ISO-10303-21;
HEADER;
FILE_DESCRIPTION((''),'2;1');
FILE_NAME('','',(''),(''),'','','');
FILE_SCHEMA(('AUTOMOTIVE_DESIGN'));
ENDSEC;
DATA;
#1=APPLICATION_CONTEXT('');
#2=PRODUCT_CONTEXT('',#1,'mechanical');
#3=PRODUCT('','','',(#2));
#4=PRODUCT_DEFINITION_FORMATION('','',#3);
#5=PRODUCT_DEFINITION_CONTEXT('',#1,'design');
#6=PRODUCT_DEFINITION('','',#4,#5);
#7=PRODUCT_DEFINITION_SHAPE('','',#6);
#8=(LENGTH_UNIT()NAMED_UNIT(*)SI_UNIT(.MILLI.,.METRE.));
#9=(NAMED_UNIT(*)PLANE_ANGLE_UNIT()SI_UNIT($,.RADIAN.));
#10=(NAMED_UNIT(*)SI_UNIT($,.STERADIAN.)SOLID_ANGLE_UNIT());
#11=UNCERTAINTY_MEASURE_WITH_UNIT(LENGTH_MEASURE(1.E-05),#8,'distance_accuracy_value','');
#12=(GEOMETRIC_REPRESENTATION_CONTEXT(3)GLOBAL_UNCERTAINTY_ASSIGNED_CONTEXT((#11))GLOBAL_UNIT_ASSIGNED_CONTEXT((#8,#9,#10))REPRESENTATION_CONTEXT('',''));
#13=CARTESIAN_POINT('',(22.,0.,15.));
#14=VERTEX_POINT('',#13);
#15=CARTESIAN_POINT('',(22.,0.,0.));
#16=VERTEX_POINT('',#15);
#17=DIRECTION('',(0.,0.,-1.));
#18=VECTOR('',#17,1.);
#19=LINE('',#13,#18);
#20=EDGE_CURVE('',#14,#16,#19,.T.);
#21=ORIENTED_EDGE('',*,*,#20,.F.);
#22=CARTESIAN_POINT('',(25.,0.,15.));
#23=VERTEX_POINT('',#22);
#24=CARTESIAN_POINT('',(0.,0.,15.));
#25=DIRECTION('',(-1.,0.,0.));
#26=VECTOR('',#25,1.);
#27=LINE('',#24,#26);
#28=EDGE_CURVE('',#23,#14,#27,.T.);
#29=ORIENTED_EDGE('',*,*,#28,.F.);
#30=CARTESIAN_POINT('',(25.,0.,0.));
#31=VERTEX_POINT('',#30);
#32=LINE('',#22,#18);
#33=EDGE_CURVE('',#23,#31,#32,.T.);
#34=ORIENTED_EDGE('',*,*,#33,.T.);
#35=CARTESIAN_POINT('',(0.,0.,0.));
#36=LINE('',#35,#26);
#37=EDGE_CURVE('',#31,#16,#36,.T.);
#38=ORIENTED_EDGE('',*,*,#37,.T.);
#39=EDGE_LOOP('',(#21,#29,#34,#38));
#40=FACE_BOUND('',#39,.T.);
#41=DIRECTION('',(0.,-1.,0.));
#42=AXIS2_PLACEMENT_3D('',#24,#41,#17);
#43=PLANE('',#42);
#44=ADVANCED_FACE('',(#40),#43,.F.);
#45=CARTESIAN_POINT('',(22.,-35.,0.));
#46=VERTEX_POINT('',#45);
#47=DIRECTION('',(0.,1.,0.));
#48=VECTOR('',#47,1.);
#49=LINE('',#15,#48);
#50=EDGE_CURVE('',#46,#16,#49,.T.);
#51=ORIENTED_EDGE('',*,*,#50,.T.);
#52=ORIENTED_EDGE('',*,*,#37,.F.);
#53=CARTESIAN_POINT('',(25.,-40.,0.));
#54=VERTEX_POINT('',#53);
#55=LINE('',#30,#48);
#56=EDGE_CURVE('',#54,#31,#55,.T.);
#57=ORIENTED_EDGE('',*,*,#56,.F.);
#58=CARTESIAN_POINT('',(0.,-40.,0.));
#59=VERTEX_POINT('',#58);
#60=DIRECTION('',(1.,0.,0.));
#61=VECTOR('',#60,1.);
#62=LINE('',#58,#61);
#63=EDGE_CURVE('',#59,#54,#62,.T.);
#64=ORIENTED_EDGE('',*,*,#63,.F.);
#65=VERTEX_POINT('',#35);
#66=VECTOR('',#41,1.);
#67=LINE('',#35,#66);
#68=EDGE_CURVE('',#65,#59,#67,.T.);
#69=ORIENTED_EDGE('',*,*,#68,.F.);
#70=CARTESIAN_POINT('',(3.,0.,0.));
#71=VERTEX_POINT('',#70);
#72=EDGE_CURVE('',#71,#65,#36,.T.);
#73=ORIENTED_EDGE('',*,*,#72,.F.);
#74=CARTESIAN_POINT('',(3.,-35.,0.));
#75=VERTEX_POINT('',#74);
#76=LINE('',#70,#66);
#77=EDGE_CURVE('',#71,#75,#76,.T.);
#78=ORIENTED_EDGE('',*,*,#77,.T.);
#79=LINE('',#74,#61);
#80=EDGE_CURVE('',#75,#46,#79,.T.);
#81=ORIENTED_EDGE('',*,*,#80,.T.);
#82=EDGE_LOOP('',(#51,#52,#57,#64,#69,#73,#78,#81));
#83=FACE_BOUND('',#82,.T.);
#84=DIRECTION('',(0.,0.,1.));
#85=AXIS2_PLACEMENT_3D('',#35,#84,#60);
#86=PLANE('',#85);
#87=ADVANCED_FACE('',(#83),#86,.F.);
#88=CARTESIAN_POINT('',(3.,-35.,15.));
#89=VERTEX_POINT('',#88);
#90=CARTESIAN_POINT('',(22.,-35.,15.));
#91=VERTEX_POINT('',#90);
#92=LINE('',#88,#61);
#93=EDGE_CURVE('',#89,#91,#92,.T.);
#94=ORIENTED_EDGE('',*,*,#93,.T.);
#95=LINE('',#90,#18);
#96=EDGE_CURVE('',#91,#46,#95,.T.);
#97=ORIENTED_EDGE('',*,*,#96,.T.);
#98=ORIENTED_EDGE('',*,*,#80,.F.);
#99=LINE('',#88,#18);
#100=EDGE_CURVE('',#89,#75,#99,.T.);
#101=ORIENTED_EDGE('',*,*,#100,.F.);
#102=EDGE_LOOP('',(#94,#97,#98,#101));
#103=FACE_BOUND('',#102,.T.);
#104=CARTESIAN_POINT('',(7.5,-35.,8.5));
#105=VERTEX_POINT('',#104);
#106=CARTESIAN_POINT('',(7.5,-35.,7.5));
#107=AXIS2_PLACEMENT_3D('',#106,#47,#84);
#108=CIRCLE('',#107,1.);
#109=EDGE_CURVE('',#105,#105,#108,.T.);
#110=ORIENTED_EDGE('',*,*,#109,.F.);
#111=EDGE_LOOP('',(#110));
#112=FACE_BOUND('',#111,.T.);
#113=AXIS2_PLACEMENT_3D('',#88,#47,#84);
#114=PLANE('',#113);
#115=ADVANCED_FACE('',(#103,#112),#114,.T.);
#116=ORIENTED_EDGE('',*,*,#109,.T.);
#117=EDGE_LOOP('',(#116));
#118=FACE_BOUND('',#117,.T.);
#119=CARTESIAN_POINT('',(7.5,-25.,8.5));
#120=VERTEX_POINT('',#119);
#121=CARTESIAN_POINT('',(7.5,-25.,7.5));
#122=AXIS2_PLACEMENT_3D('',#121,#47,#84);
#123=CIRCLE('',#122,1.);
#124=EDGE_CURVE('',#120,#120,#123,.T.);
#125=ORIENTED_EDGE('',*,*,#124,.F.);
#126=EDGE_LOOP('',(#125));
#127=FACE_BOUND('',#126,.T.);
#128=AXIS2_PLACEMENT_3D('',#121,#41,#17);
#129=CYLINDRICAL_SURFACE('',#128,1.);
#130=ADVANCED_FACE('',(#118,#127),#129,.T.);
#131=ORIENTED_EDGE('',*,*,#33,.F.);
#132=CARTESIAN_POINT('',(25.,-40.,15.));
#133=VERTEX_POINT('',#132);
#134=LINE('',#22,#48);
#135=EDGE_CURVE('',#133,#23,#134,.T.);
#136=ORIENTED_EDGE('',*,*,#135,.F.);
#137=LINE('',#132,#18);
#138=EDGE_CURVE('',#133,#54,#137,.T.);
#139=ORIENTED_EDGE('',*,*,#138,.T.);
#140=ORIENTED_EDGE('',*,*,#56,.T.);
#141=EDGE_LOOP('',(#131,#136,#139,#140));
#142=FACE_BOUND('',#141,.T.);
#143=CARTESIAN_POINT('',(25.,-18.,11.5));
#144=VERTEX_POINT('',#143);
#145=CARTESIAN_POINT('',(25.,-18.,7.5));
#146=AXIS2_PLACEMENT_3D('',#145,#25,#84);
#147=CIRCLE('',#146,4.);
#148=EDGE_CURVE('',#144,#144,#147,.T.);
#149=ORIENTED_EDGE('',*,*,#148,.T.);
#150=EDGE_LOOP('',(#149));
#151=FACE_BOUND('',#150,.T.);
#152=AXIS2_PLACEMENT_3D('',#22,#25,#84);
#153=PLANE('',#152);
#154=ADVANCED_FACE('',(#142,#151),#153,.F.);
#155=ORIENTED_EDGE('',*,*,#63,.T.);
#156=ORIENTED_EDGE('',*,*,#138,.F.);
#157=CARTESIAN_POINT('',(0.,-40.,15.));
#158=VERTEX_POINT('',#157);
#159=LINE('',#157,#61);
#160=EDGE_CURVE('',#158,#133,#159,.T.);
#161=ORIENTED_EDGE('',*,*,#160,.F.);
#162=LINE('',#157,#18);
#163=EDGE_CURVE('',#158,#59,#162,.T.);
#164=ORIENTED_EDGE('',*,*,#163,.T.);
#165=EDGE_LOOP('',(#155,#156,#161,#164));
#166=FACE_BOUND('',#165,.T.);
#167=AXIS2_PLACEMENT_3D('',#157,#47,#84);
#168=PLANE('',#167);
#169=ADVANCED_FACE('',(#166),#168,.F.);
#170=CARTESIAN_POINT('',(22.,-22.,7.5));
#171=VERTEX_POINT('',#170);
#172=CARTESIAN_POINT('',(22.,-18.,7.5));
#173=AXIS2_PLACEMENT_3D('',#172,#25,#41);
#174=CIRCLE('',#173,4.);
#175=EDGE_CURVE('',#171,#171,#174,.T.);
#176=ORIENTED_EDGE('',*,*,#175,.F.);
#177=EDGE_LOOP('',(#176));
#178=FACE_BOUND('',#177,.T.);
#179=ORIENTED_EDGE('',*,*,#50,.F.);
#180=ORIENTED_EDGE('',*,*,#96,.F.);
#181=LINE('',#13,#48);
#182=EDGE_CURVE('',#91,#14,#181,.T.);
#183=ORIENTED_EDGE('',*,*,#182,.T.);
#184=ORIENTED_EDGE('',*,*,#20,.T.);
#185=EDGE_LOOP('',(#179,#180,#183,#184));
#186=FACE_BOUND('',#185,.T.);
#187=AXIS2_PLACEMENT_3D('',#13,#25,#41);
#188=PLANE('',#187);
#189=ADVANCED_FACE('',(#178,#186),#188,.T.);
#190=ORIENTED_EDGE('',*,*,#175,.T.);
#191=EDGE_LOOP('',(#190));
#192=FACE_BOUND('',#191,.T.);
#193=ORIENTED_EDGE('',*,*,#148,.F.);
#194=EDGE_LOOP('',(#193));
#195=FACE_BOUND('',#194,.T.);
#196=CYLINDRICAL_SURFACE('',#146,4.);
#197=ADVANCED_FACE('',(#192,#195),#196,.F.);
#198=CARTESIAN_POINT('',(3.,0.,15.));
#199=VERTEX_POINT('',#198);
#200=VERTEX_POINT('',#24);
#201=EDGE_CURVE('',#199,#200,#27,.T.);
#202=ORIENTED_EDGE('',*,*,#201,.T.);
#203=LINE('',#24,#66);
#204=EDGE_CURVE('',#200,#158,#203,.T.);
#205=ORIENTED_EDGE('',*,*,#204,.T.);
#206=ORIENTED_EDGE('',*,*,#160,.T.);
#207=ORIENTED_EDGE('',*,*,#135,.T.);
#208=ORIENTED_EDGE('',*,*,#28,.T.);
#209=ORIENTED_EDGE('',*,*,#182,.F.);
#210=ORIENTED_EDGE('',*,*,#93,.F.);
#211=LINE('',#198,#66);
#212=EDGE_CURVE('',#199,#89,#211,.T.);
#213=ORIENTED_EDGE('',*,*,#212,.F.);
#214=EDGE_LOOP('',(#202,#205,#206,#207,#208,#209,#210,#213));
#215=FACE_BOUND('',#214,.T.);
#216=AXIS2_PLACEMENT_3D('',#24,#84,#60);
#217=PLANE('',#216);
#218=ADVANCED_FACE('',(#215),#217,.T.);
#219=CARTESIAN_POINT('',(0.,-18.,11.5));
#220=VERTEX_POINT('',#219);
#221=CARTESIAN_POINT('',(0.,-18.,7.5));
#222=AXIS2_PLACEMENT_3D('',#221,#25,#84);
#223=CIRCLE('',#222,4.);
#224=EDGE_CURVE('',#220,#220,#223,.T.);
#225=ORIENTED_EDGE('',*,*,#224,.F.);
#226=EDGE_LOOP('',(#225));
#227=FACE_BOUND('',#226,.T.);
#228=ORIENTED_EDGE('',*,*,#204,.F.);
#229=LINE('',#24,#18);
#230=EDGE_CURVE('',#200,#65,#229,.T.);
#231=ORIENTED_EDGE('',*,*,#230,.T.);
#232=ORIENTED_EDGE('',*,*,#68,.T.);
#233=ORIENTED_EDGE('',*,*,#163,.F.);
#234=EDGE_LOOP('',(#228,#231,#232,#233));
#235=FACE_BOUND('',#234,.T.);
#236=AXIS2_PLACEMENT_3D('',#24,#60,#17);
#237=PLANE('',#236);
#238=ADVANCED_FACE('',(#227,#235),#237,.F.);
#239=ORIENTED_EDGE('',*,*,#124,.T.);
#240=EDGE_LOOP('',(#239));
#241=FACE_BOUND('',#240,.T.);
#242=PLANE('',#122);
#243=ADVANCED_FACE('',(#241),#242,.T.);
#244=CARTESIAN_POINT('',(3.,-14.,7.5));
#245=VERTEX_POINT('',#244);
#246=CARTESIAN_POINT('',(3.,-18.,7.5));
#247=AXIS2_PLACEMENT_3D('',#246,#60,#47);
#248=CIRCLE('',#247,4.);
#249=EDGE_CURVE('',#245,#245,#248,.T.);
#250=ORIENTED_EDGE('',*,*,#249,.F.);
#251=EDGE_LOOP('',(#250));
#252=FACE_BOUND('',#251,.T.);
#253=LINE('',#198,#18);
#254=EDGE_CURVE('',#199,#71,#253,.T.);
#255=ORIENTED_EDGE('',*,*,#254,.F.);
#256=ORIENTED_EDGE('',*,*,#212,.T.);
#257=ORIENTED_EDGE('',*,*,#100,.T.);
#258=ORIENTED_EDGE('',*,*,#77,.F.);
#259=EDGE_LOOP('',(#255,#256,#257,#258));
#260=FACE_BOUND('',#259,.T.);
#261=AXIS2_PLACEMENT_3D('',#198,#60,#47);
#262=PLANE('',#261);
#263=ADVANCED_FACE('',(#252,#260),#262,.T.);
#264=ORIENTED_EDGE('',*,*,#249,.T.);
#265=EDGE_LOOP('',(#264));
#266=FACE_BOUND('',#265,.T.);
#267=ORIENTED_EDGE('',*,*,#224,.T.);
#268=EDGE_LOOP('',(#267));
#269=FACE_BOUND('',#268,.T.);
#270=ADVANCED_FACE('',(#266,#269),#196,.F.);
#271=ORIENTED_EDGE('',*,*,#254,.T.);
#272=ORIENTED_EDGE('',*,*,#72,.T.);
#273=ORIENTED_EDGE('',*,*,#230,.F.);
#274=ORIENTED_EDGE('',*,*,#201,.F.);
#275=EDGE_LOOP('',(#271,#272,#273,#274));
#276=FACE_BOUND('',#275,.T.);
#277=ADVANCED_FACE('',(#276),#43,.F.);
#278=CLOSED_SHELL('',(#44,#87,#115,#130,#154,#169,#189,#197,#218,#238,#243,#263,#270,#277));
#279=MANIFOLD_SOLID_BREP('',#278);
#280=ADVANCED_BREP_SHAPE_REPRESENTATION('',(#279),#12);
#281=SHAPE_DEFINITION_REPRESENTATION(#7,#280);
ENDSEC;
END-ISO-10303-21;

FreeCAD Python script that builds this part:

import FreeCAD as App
import Part
import Sketcher

V = App.Vector
Q = App.Units.Quantity


def add_polygon(sketch, points):
    """Adds a closed chain of lines whose ends are joined by coincident constraints."""
    first, n = sketch.GeometryCount, len(points)
    for a, b in zip(points, points[1:] + points[:1]):
        sketch.addGeometry(Part.LineSegment(App.Vector(*a, 0), App.Vector(*b, 0)), False)
    for i in range(n):
        sketch.addConstraint(Sketcher.Constraint("Coincident", first + i, 2, first + (i + 1) % n, 1))

doc = App.newDocument("Part")
params = doc.addObject("Spreadsheet::Sheet", "Params")
for row, (alias, value) in enumerate([
    ("sketch1_width", "25 mm"),
    ("sketch1_height", "40 mm"),
    ("pad1_length", "15 mm"),
    ("sketch2_width", "19 mm"),
    ("sketch2_height", "35 mm"),
    ("sketch3_diameter", "2 mm"),
    ("pad2_length", "10 mm"),
    ("sketch4_diameter", "8 mm"),
], start=1):
    params.set(f"A{row}", alias)
    params.set(f"B{row}", "=" + value)
    params.setAlias(f"B{row}", alias)

body = doc.addObject("PartDesign::Body", "Body")

# Sketch on XY plane
sketch1 = body.newObject("Sketcher::SketchObject", "Sketch")
sketch1.AttachmentSupport = (doc.getObject("XY_Plane"), [""])
sketch1.MapMode = "FlatFace"
add_polygon(sketch1, [(0, 0), (0, -40), (25, -40), (25, 0)])  # lines 0-3
sketch1.addConstraint([
    Sketcher.Constraint("Vertical", 0),
    Sketcher.Constraint("Horizontal", 1),
    Sketcher.Constraint("Vertical", 2),
    Sketcher.Constraint("Horizontal", 3),
    Sketcher.Constraint("Coincident", 3, 2, -1, 1),
    Sketcher.Constraint("DistanceX", 1, 1, 1, 2, Q("25 mm")),
    Sketcher.Constraint("DistanceY", 0, 2, 0, 1, Q("40 mm")),
])
sketch1.setExpression("Constraints[9]", "Params.sketch1_width")
sketch1.setExpression("Constraints[10]", "Params.sketch1_height")
pad1 = body.newObject("PartDesign::Pad", "Pad")
pad1.Profile = sketch1
pad1.setExpression("Length", "Params.pad1_length")

# Sketch on XY plane
sketch2 = body.newObject("Sketcher::SketchObject", "Sketch001")
sketch2.AttachmentSupport = (doc.getObject("XY_Plane"), [""])
sketch2.MapMode = "FlatFace"
add_polygon(sketch2, [(3, 0), (3, -35), (22, -35), (22, 0)])  # lines 0-3
sketch2.addConstraint([
    Sketcher.Constraint("Vertical", 0),
    Sketcher.Constraint("Horizontal", 1),
    Sketcher.Constraint("Vertical", 2),
    Sketcher.Constraint("Horizontal", 3),
    Sketcher.Constraint("PointOnObject", 2, 2, -1),
    Sketcher.Constraint("DistanceX", 1, 1, 1, 2, Q("19 mm")),
    Sketcher.Constraint("DistanceY", 0, 2, 0, 1, Q("35 mm")),
    Sketcher.Constraint("DistanceX", -1, 1, 0, 2, Q("3 mm")),
])
sketch2.setExpression("Constraints[9]", "Params.sketch2_width")
sketch2.setExpression("Constraints[10]", "Params.sketch2_height")
pocket1 = body.newObject("PartDesign::Pocket", "Pocket")
pocket1.Profile = sketch2
pocket1.Type = "ThroughAll"
pocket1.Reversed = True

# Sketch on XZ plane
sketch3 = body.newObject("Sketcher::SketchObject", "Sketch002")
sketch3.AttachmentSupport = (doc.getObject("XZ_Plane"), [""])
sketch3.MapMode = "FlatFace"
sketch3.AttachmentOffset = App.Placement(V(0, 0, 35), App.Rotation())
sketch3.addGeometry(Part.Circle(V(7.5, 7.5, 0), V(0, 0, 1), 1), False)
sketch3.addConstraint([
    Sketcher.Constraint("Diameter", 0, Q("2 mm")),
    Sketcher.Constraint("DistanceX", -1, 1, 0, 3, Q("7.5 mm")),
    Sketcher.Constraint("DistanceY", -1, 1, 0, 3, Q("7.5 mm")),
])
sketch3.setExpression("Constraints[0]", "Params.sketch3_diameter")
pad2 = body.newObject("PartDesign::Pad", "Pad001")
pad2.Profile = sketch3
pad2.setExpression("Length", "Params.pad2_length")
pad2.Reversed = True

# Sketch on YZ plane
sketch4 = body.newObject("Sketcher::SketchObject", "Sketch003")
sketch4.AttachmentSupport = (doc.getObject("YZ_Plane"), [""])
sketch4.MapMode = "FlatFace"
sketch4.addGeometry(Part.Circle(V(-18, 7.5, 0), V(0, 0, 1), 4), False)
sketch4.addConstraint([
    Sketcher.Constraint("Diameter", 0, Q("8 mm")),
    Sketcher.Constraint("DistanceX", 0, 3, -1, 1, Q("18 mm")),
    Sketcher.Constraint("DistanceY", -1, 1, 0, 3, Q("7.5 mm")),
])
sketch4.setExpression("Constraints[0]", "Params.sketch4_diameter")
pocket2 = body.newObject("PartDesign::Pocket", "Pocket001")
pocket2.Profile = sketch4
pocket2.Type = "ThroughAll"
pocket2.Reversed = True

doc.recompute()
